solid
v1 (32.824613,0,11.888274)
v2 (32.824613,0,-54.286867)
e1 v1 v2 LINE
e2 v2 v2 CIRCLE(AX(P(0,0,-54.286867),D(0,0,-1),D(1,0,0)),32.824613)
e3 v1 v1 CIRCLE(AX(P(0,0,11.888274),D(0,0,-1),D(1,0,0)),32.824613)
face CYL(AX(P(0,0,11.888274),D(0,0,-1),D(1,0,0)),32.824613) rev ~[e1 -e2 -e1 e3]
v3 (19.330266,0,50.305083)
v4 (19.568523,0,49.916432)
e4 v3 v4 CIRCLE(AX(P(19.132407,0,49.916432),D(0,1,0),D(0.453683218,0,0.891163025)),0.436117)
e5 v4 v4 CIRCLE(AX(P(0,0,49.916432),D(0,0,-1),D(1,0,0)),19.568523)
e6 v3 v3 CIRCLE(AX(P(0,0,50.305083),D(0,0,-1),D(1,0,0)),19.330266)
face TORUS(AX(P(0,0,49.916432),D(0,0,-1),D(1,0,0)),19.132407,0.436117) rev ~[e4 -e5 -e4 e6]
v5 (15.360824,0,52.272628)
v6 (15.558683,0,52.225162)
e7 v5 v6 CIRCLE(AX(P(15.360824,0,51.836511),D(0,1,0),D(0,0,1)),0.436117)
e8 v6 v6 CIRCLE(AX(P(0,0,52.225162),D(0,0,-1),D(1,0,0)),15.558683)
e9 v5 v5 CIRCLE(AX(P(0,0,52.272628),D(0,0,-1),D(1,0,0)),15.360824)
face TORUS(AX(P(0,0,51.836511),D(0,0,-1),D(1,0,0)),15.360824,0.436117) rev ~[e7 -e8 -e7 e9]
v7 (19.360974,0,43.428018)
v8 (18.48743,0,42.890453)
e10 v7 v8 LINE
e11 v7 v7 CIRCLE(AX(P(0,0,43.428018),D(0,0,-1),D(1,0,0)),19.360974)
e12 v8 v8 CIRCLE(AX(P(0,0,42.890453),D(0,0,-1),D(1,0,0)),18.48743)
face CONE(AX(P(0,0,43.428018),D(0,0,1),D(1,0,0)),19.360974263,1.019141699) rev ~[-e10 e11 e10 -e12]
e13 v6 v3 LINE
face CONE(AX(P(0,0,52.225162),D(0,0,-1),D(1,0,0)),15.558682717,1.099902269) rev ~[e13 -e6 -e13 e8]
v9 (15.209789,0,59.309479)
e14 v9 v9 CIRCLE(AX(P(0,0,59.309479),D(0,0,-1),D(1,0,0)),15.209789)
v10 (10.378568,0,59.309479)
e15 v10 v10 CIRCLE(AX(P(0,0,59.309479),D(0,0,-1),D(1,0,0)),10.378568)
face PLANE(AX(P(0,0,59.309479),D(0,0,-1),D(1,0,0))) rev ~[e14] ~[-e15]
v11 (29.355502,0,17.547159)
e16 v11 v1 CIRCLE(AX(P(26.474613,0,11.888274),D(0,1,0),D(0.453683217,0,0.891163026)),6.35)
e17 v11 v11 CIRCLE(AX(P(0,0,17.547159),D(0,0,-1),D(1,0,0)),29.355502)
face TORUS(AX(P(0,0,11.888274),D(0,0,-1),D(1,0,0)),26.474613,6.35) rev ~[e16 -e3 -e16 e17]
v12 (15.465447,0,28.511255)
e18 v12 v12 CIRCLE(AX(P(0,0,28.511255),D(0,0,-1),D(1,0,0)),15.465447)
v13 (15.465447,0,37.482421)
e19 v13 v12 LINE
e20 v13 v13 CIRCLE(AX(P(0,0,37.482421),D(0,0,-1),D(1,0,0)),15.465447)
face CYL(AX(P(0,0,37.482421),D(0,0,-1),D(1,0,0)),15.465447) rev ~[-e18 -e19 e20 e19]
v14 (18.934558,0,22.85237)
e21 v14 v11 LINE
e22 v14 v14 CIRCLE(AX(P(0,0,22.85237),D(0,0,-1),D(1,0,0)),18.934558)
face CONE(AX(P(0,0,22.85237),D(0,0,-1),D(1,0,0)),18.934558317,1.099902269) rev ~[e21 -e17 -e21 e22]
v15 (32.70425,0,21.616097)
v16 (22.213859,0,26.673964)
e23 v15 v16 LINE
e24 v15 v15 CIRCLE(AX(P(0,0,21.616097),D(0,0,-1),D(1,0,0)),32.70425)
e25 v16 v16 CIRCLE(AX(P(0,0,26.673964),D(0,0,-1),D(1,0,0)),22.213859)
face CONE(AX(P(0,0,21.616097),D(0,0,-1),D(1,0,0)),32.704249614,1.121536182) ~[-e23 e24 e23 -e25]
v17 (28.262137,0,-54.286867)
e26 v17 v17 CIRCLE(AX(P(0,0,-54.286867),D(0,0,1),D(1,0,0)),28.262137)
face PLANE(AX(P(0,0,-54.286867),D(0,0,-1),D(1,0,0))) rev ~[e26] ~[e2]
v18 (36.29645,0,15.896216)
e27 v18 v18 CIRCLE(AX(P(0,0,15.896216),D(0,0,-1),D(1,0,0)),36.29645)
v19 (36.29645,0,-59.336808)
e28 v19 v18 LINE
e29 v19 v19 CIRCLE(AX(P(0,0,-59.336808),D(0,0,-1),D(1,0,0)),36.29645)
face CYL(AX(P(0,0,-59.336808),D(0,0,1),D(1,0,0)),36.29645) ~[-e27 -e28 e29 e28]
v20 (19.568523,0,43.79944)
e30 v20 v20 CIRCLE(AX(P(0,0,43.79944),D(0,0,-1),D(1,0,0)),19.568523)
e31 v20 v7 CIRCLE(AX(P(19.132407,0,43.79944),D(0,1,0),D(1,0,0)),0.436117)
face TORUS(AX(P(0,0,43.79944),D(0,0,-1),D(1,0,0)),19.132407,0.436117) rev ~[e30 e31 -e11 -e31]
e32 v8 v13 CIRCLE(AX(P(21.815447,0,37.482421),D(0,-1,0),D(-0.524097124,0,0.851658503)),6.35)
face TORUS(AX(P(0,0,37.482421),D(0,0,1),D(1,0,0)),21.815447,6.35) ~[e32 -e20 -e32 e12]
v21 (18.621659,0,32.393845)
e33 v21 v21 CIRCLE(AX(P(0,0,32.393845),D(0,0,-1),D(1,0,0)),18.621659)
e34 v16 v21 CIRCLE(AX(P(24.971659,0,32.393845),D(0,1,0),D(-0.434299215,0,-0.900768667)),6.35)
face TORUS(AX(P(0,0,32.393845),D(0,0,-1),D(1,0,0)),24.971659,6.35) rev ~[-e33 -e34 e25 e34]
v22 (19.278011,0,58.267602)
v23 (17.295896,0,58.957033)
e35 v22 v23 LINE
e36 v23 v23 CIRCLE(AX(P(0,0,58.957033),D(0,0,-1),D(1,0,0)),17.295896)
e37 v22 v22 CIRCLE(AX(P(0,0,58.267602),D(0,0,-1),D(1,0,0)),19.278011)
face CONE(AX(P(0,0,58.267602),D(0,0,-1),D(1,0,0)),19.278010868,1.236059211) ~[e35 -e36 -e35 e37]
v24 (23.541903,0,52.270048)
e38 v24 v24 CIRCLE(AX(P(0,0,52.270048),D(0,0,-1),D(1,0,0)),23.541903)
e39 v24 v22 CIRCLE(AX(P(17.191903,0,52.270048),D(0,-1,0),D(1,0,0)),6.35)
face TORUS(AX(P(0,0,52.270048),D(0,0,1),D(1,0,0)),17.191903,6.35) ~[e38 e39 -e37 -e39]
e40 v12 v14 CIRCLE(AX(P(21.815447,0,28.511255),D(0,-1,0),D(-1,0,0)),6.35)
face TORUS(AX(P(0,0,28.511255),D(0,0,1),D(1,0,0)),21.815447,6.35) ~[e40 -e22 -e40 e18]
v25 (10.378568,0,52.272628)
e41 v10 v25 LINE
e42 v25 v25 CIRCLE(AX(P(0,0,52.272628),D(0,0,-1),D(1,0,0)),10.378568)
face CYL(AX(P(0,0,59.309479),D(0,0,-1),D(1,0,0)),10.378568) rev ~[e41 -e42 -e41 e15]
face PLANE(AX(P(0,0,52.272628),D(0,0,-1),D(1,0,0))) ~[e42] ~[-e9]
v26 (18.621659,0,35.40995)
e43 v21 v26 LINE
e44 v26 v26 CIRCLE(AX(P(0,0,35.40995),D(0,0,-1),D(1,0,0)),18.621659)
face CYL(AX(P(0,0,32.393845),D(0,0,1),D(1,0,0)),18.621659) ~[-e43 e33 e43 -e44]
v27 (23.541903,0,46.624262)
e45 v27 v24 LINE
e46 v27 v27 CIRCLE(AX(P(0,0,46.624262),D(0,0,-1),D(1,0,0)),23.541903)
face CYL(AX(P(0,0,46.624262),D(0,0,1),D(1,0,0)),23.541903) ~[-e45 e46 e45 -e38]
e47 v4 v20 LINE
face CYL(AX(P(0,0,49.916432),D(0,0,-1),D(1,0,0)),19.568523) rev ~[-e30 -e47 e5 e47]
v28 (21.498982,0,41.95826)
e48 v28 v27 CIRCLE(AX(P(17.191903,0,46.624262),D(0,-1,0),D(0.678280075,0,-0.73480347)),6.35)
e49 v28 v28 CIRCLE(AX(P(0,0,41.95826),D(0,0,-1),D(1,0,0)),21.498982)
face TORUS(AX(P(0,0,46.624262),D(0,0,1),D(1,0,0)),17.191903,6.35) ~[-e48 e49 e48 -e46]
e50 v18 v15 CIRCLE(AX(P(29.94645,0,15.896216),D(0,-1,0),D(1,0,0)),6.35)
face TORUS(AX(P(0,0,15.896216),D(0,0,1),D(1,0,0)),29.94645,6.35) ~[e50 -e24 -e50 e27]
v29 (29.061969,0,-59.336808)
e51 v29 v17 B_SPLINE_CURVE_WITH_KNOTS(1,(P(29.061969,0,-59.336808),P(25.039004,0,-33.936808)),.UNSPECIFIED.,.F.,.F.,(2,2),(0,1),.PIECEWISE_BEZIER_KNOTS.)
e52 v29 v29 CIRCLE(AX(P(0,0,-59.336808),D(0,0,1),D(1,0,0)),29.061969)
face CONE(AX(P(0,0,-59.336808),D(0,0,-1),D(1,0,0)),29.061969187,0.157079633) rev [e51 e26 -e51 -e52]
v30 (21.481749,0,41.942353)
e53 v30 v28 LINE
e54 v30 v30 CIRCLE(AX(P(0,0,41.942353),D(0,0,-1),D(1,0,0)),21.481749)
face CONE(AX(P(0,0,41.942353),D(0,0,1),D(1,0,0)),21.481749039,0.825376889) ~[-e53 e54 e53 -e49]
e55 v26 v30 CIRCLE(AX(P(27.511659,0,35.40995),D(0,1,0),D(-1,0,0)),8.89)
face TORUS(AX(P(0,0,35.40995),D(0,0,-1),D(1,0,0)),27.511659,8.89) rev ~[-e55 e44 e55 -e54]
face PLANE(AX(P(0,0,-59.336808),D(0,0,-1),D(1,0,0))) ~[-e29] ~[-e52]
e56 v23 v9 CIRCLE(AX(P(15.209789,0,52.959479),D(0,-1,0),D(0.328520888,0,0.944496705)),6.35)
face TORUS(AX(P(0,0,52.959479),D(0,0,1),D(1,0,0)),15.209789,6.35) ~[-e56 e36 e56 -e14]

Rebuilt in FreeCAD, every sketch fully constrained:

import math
import FreeCAD as App
import Part
import Sketcher

V = App.Vector
Q = App.Units.Quantity

doc = App.newDocument("Part")
body = doc.addObject("PartDesign::Body", "Body")

sketch1 = doc.addObject("Sketcher::SketchObject", "Sketch")
body.addObject(sketch1)
sketch1.AttachmentSupport = (doc.XZ_Plane, [""])
sketch1.MapMode = "FlatFace"
sketch1.addGeometry(Part.LineSegment(V(0, -54.287, 0), V(0, -59.337, 0)), False)
sketch1.addGeometry(Part.LineSegment(V(0, -59.337, 0), V(36.296, -59.337, 0)), False)
sketch1.addGeometry(Part.LineSegment(V(36.296, -59.337, 0), V(36.296, 15.896, 0)), False)
sketch1.addGeometry(Part.ArcOfCircle(Part.Circle(V(29.946, 15.896, 0), V(0, 0, 1), 6.35), math.radians(0), math.radians(64)), False)
sketch1.addGeometry(Part.LineSegment(V(32.704, 21.616, 0), V(22.214, 26.674, 0)), False)
sketch1.addGeometry(Part.ArcOfCircle(Part.Circle(V(24.972, 32.394, 0), V(0, 0, 1), 6.35), math.radians(180), math.radians(244)), False)
sketch1.addGeometry(Part.LineSegment(V(18.622, 32.394, 0), V(18.622, 35.41, 0)), False)
sketch1.addGeometry(Part.ArcOfCircle(Part.Circle(V(27.512, 35.41, 0), V(0, 0, 1), 8.89), math.radians(133), math.radians(180)), False)
sketch1.addGeometry(Part.LineSegment(V(21.482, 41.942, 0), V(21.499, 41.958, 0)), False)
sketch1.addGeometry(Part.ArcOfCircle(Part.Circle(V(17.192, 46.624, 0), V(0, 0, 1), 6.35), math.radians(-47), math.radians(0)), False)
sketch1.addGeometry(Part.LineSegment(V(23.542, 46.624, 0), V(23.542, 52.27, 0)), False)
sketch1.addGeometry(Part.ArcOfCircle(Part.Circle(V(17.192, 52.27, 0), V(0, 0, 1), 6.35), math.radians(0), math.radians(71)), False)
sketch1.addGeometry(Part.LineSegment(V(19.278, 58.268, 0), V(17.296, 58.957, 0)), False)
sketch1.addGeometry(Part.ArcOfCircle(Part.Circle(V(15.21, 52.959, 0), V(0, 0, 1), 6.35), math.radians(70.82), math.radians(90)), False)
sketch1.addGeometry(Part.LineSegment(V(15.21, 59.309, 0), V(10.379, 59.309, 0)), False)
sketch1.addGeometry(Part.LineSegment(V(10.379, 59.309, 0), V(10.379, 52.273, 0)), False)
sketch1.addGeometry(Part.LineSegment(V(10.379, 52.273, 0), V(15.361, 52.273, 0)), False)
sketch1.addGeometry(Part.ArcOfCircle(Part.Circle(V(15.361, 51.837, 0), V(0, 0, 1), 0.436), math.radians(63), math.radians(90)), False)
sketch1.addGeometry(Part.LineSegment(V(15.559, 52.225, 0), V(19.33, 50.305, 0)), False)
sketch1.addGeometry(Part.ArcOfCircle(Part.Circle(V(19.132, 49.916, 0), V(0, 0, 1), 0.436), math.radians(0), math.radians(63)), False)
sketch1.addGeometry(Part.LineSegment(V(19.569, 49.916, 0), V(19.569, 43.799, 0)), False)
sketch1.addGeometry(Part.ArcOfCircle(Part.Circle(V(19.132, 43.799, 0), V(0, 0, 1), 0.436), math.radians(-58), math.radians(0)), False)
sketch1.addGeometry(Part.LineSegment(V(19.361, 43.428, 0), V(18.487, 42.89, 0)), False)
sketch1.addGeometry(Part.ArcOfCircle(Part.Circle(V(21.815, 37.482, 0), V(0, 0, 1), 6.35), math.radians(122), math.radians(180)), False)
sketch1.addGeometry(Part.LineSegment(V(15.465, 37.482, 0), V(15.465, 28.511, 0)), False)
sketch1.addGeometry(Part.ArcOfCircle(Part.Circle(V(21.815, 28.511, 0), V(0, 0, 1), 6.35), math.radians(180), math.radians(243)), False)
sketch1.addGeometry(Part.LineSegment(V(18.935, 22.852, 0), V(29.356, 17.547, 0)), False)
sketch1.addGeometry(Part.ArcOfCircle(Part.Circle(V(26.475, 11.888, 0), V(0, 0, 1), 6.35), math.radians(0), math.radians(63)), False)
sketch1.addGeometry(Part.LineSegment(V(32.825, 11.888, 0), V(32.825, -54.287, 0)), False)
sketch1.addGeometry(Part.LineSegment(V(32.825, -54.287, 0), V(0, -54.287, 0)), False)
sketch1.addConstraint(Sketcher.Constraint("Coincident", 0, 2, 1, 1))
sketch1.addConstraint(Sketcher.Constraint("Coincident", 1, 2, 2, 1))
sketch1.addConstraint(Sketcher.Constraint("Tangent", 2, 2, 3, 1))
sketch1.addConstraint(Sketcher.Constraint("Tangent", 3, 2, 4, 1))
sketch1.addConstraint(Sketcher.Constraint("Tangent", 4, 2, 5, 2))
sketch1.addConstraint(Sketcher.Constraint("Tangent", 5, 1, 6, 1))
sketch1.addConstraint(Sketcher.Constraint("Tangent", 6, 2, 7, 2))
sketch1.addConstraint(Sketcher.Constraint("Tangent", 7, 1, 8, 1))
sketch1.addConstraint(Sketcher.Constraint("Tangent", 8, 2, 9, 1))
sketch1.addConstraint(Sketcher.Constraint("Tangent", 9, 2, 10, 1))
sketch1.addConstraint(Sketcher.Constraint("Tangent", 10, 2, 11, 1))
sketch1.addConstraint(Sketcher.Constraint("Tangent", 11, 2, 12, 1))
sketch1.addConstraint(Sketcher.Constraint("Tangent", 12, 2, 13, 1))
sketch1.addConstraint(Sketcher.Constraint("Tangent", 13, 2, 14, 1))
sketch1.addConstraint(Sketcher.Constraint("Coincident", 14, 2, 15, 1))
sketch1.addConstraint(Sketcher.Constraint("Coincident", 15, 2, 16, 1))
sketch1.addConstraint(Sketcher.Constraint("Tangent", 16, 2, 17, 2))
sketch1.addConstraint(Sketcher.Constraint("Tangent", 17, 1, 18, 1))
sketch1.addConstraint(Sketcher.Constraint("Tangent", 18, 2, 19, 2))
sketch1.addConstraint(Sketcher.Constraint("Tangent", 19, 1, 20, 1))
sketch1.addConstraint(Sketcher.Constraint("Tangent", 20, 2, 21, 2))
sketch1.addConstraint(Sketcher.Constraint("Tangent", 21, 1, 22, 1))
sketch1.addConstraint(Sketcher.Constraint("Tangent", 22, 2, 23, 1))
sketch1.addConstraint(Sketcher.Constraint("Tangent", 23, 2, 24, 1))
sketch1.addConstraint(Sketcher.Constraint("Tangent", 24, 2, 25, 1))
sketch1.addConstraint(Sketcher.Constraint("Tangent", 25, 2, 26, 1))
sketch1.addConstraint(Sketcher.Constraint("Tangent", 26, 2, 27, 2))
sketch1.addConstraint(Sketcher.Constraint("Tangent", 27, 1, 28, 1))
sketch1.addConstraint(Sketcher.Constraint("Coincident", 28, 2, 29, 1))
sketch1.addConstraint(Sketcher.Constraint("Coincident", 29, 2, 0, 1))
sketch1.addConstraint(Sketcher.Constraint("Vertical", 0))
sketch1.addConstraint(Sketcher.Constraint("Horizontal", 1))
sketch1.addConstraint(Sketcher.Constraint("Vertical", 2))
sketch1.addConstraint(Sketcher.Constraint("Vertical", 6))
sketch1.addConstraint(Sketcher.Constraint("Vertical", 10))
sketch1.addConstraint(Sketcher.Constraint("Horizontal", 14))
sketch1.addConstraint(Sketcher.Constraint("Vertical", 15))
sketch1.addConstraint(Sketcher.Constraint("Horizontal", 16))
sketch1.addConstraint(Sketcher.Constraint("Vertical", 20))
sketch1.addConstraint(Sketcher.Constraint("Vertical", 24))
sketch1.addConstraint(Sketcher.Constraint("Vertical", 28))
sketch1.addConstraint(Sketcher.Constraint("Horizontal", 29))
sketch1.addConstraint(Sketcher.Constraint("Equal", 3, 5))
sketch1.addConstraint(Sketcher.Constraint("Equal", 5, 9))
sketch1.addConstraint(Sketcher.Constraint("Equal", 9, 11))
sketch1.addConstraint(Sketcher.Constraint("Equal", 11, 13))
sketch1.addConstraint(Sketcher.Constraint("Equal", 17, 19))
sketch1.addConstraint(Sketcher.Constraint("Equal", 19, 21))
sketch1.addConstraint(Sketcher.Constraint("Equal", 13, 23))
sketch1.addConstraint(Sketcher.Constraint("Equal", 23, 25))
sketch1.addConstraint(Sketcher.Constraint("Equal", 25, 27))
sketch1.addConstraint(Sketcher.Constraint("PointOnObject", 0, 2, -2))
sketch1.addConstraint(Sketcher.Constraint("Parallel", 18, 26))
sketch1.addConstraint(Sketcher.Constraint("Radius", 3, Q("0.25 in")))
sketch1.addConstraint(Sketcher.Constraint("Radius", 7, Q("0.35 in")))
sketch1.addConstraint(Sketcher.Constraint("DistanceY", -1, 1, 11, 2, Q("2.2940001 in")))
sketch1.addConstraint(Sketcher.Constraint("DistanceY", -1, 1, 8, 2, Q("1.6519 in")))
sketch1.addConstraint(Sketcher.Constraint("Radius", 17, 0.436117))
sketch1.addConstraint(Sketcher.Constraint("DistanceX", 17, 1, 11, 3, Q("0.0643 in")))
sketch1.addConstraint(Sketcher.Constraint("DistanceX", 1, 1, 1, 2, 36.29645))
sketch1.addConstraint(Sketcher.Constraint("DistanceX", 14, 2, 14, 1, 4.83122))
sketch1.addConstraint(Sketcher.Constraint("DistanceY", 0, 2, 0, 1, 5.04994))
sketch1.addConstraint(Sketcher.Constraint("DistanceY", 15, 2, 15, 1, 7.036851))
sketch1.addConstraint(Sketcher.Constraint("DistanceY", 20, 2, 20, 1, 6.116992))
sketch1.addConstraint(Sketcher.Constraint("DistanceY", 28, 2, 28, 1, 66.175142))
sketch1.addConstraint(Sketcher.Constraint("DistanceX", -1, 1, 26, 2, 29.355502))
sketch1.addConstraint(Sketcher.Constraint("DistanceX", 3, 3, 3, 2, 2.7578))
sketch1.addConstraint(Sketcher.Constraint("DistanceY", 7, 1, 22, 2, 0.9481))
sketch1.addConstraint(Sketcher.Constraint("DistanceX", 25, 2, 4, 2, 3.279301))
sketch1.addConstraint(Sketcher.Constraint("DistanceX", 16, 1, 16, 2, 4.982256))
sketch1.addConstraint(Sketcher.Constraint("DistanceX", 29, 2, 29, 1, 32.824613))
sketch1.addConstraint(Sketcher.Constraint("DistanceY", 2, 1, 2, 2, 75.233023))
sketch1.addConstraint(Sketcher.Constraint("DistanceY", 6, 1, 6, 2, 3.016105))
sketch1.addConstraint(Sketcher.Constraint("DistanceY", 10, 1, 10, 2, 5.645786))
sketch1.addConstraint(Sketcher.Constraint("DistanceY", 24, 2, 24, 1, 8.971166))
sketch1.addConstraint(Sketcher.Constraint("DistanceX", -1, 1, 5, 3, 24.971659))
sketch1.addConstraint(Sketcher.Constraint("DistanceY", -1, 1, 7, 3, 35.40995))
sketch1.addConstraint(Sketcher.Constraint("DistanceX", -1, 1, 13, 3, 15.209789))
revolution = doc.addObject("PartDesign::Revolution", "Revolution")
body.addObject(revolution)
revolution.Profile = sketch1
revolution.ReferenceAxis = (sketch1, ["V_Axis"])
revolution.Angle = 360

sketch2 = doc.addObject("Sketcher::SketchObject", "Sketch001")
body.addObject(sketch2)
sketch2.AttachmentSupport = (doc.XY_Plane, [""])
sketch2.MapMode = "FlatFace"
sketch2.AttachmentOffset = App.Placement(V(0, 0, -59.336808), App.Rotation())
sketch2.addGeometry(Part.Circle(V(0, 0, 0), V(0, 0, 1), 29), False)
sketch2.addConstraint(Sketcher.Constraint("Coincident", 0, 3, -1, 1))
sketch2.addConstraint(Sketcher.Constraint("Diameter", 0, 58.123938))
pocket1 = doc.addObject("PartDesign::Pocket", "Pocket")
body.addObject(pocket1)
pocket1.Profile = sketch2
pocket1.Length = Q("1 in")
pocket1.Reversed = True
pocket1.TaperAngle = -9

doc.recompute()
